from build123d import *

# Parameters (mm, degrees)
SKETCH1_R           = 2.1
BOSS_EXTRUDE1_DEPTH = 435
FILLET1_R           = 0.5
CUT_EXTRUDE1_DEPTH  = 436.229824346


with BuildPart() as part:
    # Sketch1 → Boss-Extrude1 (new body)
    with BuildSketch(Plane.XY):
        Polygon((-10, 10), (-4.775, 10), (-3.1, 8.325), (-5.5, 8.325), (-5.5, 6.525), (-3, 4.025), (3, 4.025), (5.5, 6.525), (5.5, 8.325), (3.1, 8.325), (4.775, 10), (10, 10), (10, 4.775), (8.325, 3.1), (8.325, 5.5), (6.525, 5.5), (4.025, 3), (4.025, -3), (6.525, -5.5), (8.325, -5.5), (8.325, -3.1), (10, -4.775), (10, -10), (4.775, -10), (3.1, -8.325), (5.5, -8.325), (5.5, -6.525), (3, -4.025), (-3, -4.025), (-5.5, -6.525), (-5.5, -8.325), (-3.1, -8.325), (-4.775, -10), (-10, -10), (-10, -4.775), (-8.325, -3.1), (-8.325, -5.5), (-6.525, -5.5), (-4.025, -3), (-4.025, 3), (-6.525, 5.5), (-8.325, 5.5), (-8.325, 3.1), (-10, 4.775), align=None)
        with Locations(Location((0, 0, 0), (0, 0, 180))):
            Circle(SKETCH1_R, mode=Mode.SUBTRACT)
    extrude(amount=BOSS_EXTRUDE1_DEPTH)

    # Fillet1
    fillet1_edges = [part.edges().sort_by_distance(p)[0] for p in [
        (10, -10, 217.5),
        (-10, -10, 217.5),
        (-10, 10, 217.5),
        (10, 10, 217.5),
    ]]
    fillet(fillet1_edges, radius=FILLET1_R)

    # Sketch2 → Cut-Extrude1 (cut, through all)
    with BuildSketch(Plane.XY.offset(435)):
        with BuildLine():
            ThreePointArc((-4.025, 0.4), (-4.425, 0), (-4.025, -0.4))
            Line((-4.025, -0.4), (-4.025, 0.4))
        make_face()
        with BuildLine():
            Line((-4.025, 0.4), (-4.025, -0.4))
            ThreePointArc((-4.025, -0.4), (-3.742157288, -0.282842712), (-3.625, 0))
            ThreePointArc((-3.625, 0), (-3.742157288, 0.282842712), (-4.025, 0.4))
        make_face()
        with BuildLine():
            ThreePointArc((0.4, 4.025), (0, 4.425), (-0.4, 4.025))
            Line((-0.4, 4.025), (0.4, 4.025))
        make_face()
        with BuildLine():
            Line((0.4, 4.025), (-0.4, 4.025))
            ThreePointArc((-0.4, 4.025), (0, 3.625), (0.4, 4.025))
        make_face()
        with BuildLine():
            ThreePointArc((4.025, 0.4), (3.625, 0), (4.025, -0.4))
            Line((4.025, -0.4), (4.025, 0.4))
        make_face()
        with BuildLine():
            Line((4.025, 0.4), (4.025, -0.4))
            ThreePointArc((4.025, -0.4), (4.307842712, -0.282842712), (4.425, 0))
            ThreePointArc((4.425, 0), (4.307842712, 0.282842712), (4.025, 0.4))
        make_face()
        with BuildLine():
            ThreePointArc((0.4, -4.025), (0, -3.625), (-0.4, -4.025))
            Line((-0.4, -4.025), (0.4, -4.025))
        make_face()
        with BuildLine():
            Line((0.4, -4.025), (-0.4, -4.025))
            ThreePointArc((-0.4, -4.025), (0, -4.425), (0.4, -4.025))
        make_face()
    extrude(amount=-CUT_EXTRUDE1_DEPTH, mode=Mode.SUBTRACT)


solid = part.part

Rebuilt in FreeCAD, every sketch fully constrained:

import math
import FreeCAD as App
import Part
import Sketcher
from FreeCAD import Vector
Q = App.Units.Quantity


def edges_at(feature, points):
    """Names of the edges that pass closest to the given points."""
    edges = feature.Shape.Edges
    near = lambda p: min(range(len(edges)), key=lambda i: edges[i].distToShape(Part.Vertex(*p))[0])
    return sorted({f"Edge{near(p) + 1}" for p in points})


def add_polygon(sketch, points):
    """Adds a closed chain of lines whose ends are joined by coincident constraints."""
    first, n = sketch.GeometryCount, len(points)
    for a, b in zip(points, points[1:] + points[:1]):
        sketch.addGeometry(Part.LineSegment(App.Vector(*a, 0), App.Vector(*b, 0)), False)
    for i in range(n):
        sketch.addConstraint(Sketcher.Constraint("Coincident", first + i, 2, first + (i + 1) % n, 1))

doc = App.newDocument("Part")
body = doc.addObject("PartDesign::Body", "Body")

sketch1 = doc.addObject("Sketcher::SketchObject", "Sketch")
body.addObject(sketch1)
sketch1.AttachmentSupport = (doc.XY_Plane, [""])
sketch1.MapMode = "FlatFace"
add_polygon(sketch1, [(-4.775, 10), (-10, 10), (-10, 4.775), (-8.325, 3.1), (-8.325, 5.5), (-6.525, 5.5), (-4.025, 3), (-4.025, -3), (-6.525, -5.5), (-8.325, -5.5), (-8.325, -3.1), (-10, -4.775), (-10, -10), (-4.775, -10), (-3.1, -8.325), (-5.5, -8.325), (-5.5, -6.525), (-3, -4.025), (3, -4.025), (5.5, -6.525), (5.5, -8.325), (3.1, -8.325), (4.775, -10), (10, -10), (10, -4.775), (8.325, -3.1), (8.325, -5.5), (6.525, -5.5), (4.025, -3), (4.025, 3), (6.525, 5.5), (8.325, 5.5), (8.325, 3.1), (10, 4.775), (10, 10), (4.775, 10), (3.1, 8.325), (5.5, 8.325), (5.5, 6.525), (3, 4.025), (-3, 4.025), (-5.5, 6.525), (-5.5, 8.325), (-3.1, 8.325)])
sketch1.addGeometry(Part.Circle(Vector(0, 0, 0), Vector(0, 0, 1), 2.1), False)
sketch1.addConstraint([
    Sketcher.Constraint("Horizontal", 0),
    Sketcher.Constraint("Vertical", 1),
    Sketcher.Constraint("Vertical", 3),
    Sketcher.Constraint("Horizontal", 4),
    Sketcher.Constraint("Vertical", 6),
    Sketcher.Constraint("Horizontal", 8),
    Sketcher.Constraint("Vertical", 9),
    Sketcher.Constraint("Vertical", 11),
    Sketcher.Constraint("Horizontal", 12),
    Sketcher.Constraint("Horizontal", 14),
    Sketcher.Constraint("Vertical", 15),
    Sketcher.Constraint("Horizontal", 17),
    Sketcher.Constraint("Vertical", 19),
    Sketcher.Constraint("Horizontal", 20),
    Sketcher.Constraint("Horizontal", 22),
    Sketcher.Constraint("Vertical", 23),
    Sketcher.Constraint("Vertical", 25),
    Sketcher.Constraint("Horizontal", 26),
    Sketcher.Constraint("Vertical", 28),
    Sketcher.Constraint("Horizontal", 30),
    Sketcher.Constraint("Vertical", 31),
    Sketcher.Constraint("Vertical", 33),
    Sketcher.Constraint("Horizontal", 34),
    Sketcher.Constraint("Horizontal", 36),
    Sketcher.Constraint("Vertical", 37),
    Sketcher.Constraint("Horizontal", 39),
    Sketcher.Constraint("Vertical", 41),
    Sketcher.Constraint("Horizontal", 42),
    Sketcher.Constraint("Coincident", 44, 3, -1, 1),
    Sketcher.Constraint("Symmetric", 0, 2, 22, 2, -1, 1),
    Sketcher.Constraint("Symmetric", 2, 2, 24, 2, -1, 1),
    Sketcher.Constraint("Symmetric", 4, 2, 26, 2, -1, 1),
    Sketcher.Constraint("Symmetric", 5, 2, 27, 2, -1, 1),
    Sketcher.Constraint("Symmetric", 7, 2, 29, 2, -1, 1),
    Sketcher.Constraint("Symmetric", 9, 2, 31, 2, -1, 1),
    Sketcher.Constraint("Symmetric", 10, 2, 32, 2, -1, 1),
    Sketcher.Constraint("Symmetric", 12, 2, 34, 2, -1, 1),
    Sketcher.Constraint("Symmetric", 13, 2, 35, 2, -1, 1),
    Sketcher.Constraint("Symmetric", 15, 2, 37, 2, -1, 1),
    Sketcher.Constraint("Symmetric", 16, 2, 38, 2, -1, 1),
    Sketcher.Constraint("Symmetric", 18, 2, 40, 2, -1, 1),
    Sketcher.Constraint("Symmetric", 20, 2, 42, 2, -1, 1),
    Sketcher.Constraint("Symmetric", 15, 2, 18, 2, -2),
    Sketcher.Constraint("Symmetric", 13, 2, 20, 2, -2),
    Sketcher.Constraint("Symmetric", 12, 2, 21, 2, -2),
    Sketcher.Constraint("Symmetric", 10, 2, 23, 2, -2),
    Sketcher.Constraint("Symmetric", 9, 2, 24, 2, -2),
    Sketcher.Constraint("Symmetric", 7, 2, 26, 2, -2),
    Sketcher.Constraint("Parallel", 2, 5),
    Sketcher.Constraint("Perpendicular", 5, 7),
    Sketcher.Constraint("Parallel", 7, 10),
    Sketcher.Constraint("Parallel", 10, 13),
    Sketcher.Constraint("Parallel", 13, 16),
    Sketcher.Constraint("Perpendicular", 16, 18),
    Sketcher.Constraint("Parallel", 18, 21),
    Sketcher.Constraint("Perpendicular", 27, 29),
    Sketcher.Constraint("Perpendicular", 38, 40),
    Sketcher.Constraint("Parallel", 40, 43),
    Sketcher.Constraint("Equal", 34, 1),
    Sketcher.Constraint("Equal", 42, 3),
    Sketcher.Constraint("Equal", 39, 6),
    Sketcher.Constraint("Equal", 30, 15),
    Sketcher.Constraint("Equal", 10, 13),
    Sketcher.Constraint("Equal", 7, 16),
    Sketcher.Constraint("Diameter", 44, Q("4.2 mm")),
    Sketcher.Constraint("DistanceX", 17, 1, 17, 2, Q("6 mm")),
    Sketcher.Constraint("DistanceX", 4, 1, 4, 2, Q("1.8 mm")),
    Sketcher.Constraint("DistanceX", 14, 2, 14, 1, Q("2.4 mm")),
    Sketcher.Constraint("DistanceX", 0, 2, -1, 1, Q("10 mm")),
    Sketcher.Constraint("DistanceY", -1, 1, 2, 2, Q("3.1 mm")),
    Sketcher.Constraint("DistanceX", 0, 2, 0, 1, Q("5.225 mm")),
])
pad1 = doc.addObject("PartDesign::Pad", "Pad")
body.addObject(pad1)
pad1.Profile = sketch1
pad1.Length = 435
doc.recompute()

fillet = doc.addObject("PartDesign::Fillet", "Fillet")
body.addObject(fillet)
fillet.Base = (pad1, edges_at(pad1, [
    (10, -10, 217.5),
    (-10, -10, 217.5),
    (-10, 10, 217.5),
    (10, 10, 217.5),
]))
fillet.Radius = 0.5

sketch2 = doc.addObject("Sketcher::SketchObject", "Sketch001")
body.addObject(sketch2)
sketch2.AttachmentSupport = (doc.XY_Plane, [""])
sketch2.MapMode = "FlatFace"
sketch2.AttachmentOffset = App.Placement(Vector(0, 0, 435), App.Rotation())
sketch2.addGeometry([
    Part.ArcOfCircle(Part.Circle(Vector(-4.025, 0, 0), Vector(0, 0, 1), 0.4), math.radians(90), math.radians(270)),
    Part.ArcOfCircle(Part.Circle(Vector(-4.025, 0, 0), Vector(0, 0, 1), 0.4), math.radians(-90), math.radians(0)),
    Part.ArcOfCircle(Part.Circle(Vector(-4.025, 0, 0), Vector(0, 0, 1), 0.4), math.radians(0), math.radians(90)),
    Part.Circle(Vector(0, 4.025, 0), Vector(0, 0, 1), 0.4),
    Part.ArcOfCircle(Part.Circle(Vector(4.025, 0, 0), Vector(0, 0, 1), 0.4), math.radians(90), math.radians(270)),
    Part.ArcOfCircle(Part.Circle(Vector(4.025, 0, 0), Vector(0, 0, 1), 0.4), math.radians(-90), math.radians(0)),
    Part.ArcOfCircle(Part.Circle(Vector(4.025, 0, 0), Vector(0, 0, 1), 0.4), math.radians(0), math.radians(90)),
    Part.Circle(Vector(0, -4.025, 0), Vector(0, 0, 1), 0.4),
], False)
sketch2.addConstraint([
    Sketcher.Constraint("Tangent", 0, 2, 1, 1),
    Sketcher.Constraint("Tangent", 1, 2, 2, 1),
    Sketcher.Constraint("Tangent", 2, 2, 0, 1),
    Sketcher.Constraint("Tangent", 4, 2, 5, 1),
    Sketcher.Constraint("Tangent", 5, 2, 6, 1),
    Sketcher.Constraint("Tangent", 6, 2, 4, 1),
    Sketcher.Constraint("Equal", 2, 3),
    Sketcher.Constraint("Equal", 3, 4),
    Sketcher.Constraint("Equal", 6, 7),
    Sketcher.Constraint("Symmetric", 0, 3, 4, 3, -1, 1),
    Sketcher.Constraint("Symmetric", 3, 3, 7, 3, -1, 1),
    Sketcher.Constraint("Symmetric", 0, 2, 4, 2, -2),
    Sketcher.Constraint("PointOnObject", 3, 3, -2),
    Sketcher.Constraint("PointOnObject", 1, 2, -1),
    Sketcher.Constraint("PointOnObject", 5, 2, -1),
    Sketcher.Constraint("Vertical", 2, 3, 0, 2),
    Sketcher.Constraint("Vertical", 0, 2, 2, 2),
    Sketcher.Constraint("Vertical", 4, 2, 6, 2),
    Sketcher.Constraint("Diameter", 3, Q("0.8 mm")),
    Sketcher.Constraint("DistanceX", 0, 3, 4, 3, Q("8.05 mm")),
    Sketcher.Constraint("DistanceY", -1, 1, 3, 3, Q("4.025 mm")),
])
pocket1 = doc.addObject("PartDesign::Pocket", "Pocket")
body.addObject(pocket1)
pocket1.Profile = sketch2
pocket1.Type = "ThroughAll"

doc.recompute()
